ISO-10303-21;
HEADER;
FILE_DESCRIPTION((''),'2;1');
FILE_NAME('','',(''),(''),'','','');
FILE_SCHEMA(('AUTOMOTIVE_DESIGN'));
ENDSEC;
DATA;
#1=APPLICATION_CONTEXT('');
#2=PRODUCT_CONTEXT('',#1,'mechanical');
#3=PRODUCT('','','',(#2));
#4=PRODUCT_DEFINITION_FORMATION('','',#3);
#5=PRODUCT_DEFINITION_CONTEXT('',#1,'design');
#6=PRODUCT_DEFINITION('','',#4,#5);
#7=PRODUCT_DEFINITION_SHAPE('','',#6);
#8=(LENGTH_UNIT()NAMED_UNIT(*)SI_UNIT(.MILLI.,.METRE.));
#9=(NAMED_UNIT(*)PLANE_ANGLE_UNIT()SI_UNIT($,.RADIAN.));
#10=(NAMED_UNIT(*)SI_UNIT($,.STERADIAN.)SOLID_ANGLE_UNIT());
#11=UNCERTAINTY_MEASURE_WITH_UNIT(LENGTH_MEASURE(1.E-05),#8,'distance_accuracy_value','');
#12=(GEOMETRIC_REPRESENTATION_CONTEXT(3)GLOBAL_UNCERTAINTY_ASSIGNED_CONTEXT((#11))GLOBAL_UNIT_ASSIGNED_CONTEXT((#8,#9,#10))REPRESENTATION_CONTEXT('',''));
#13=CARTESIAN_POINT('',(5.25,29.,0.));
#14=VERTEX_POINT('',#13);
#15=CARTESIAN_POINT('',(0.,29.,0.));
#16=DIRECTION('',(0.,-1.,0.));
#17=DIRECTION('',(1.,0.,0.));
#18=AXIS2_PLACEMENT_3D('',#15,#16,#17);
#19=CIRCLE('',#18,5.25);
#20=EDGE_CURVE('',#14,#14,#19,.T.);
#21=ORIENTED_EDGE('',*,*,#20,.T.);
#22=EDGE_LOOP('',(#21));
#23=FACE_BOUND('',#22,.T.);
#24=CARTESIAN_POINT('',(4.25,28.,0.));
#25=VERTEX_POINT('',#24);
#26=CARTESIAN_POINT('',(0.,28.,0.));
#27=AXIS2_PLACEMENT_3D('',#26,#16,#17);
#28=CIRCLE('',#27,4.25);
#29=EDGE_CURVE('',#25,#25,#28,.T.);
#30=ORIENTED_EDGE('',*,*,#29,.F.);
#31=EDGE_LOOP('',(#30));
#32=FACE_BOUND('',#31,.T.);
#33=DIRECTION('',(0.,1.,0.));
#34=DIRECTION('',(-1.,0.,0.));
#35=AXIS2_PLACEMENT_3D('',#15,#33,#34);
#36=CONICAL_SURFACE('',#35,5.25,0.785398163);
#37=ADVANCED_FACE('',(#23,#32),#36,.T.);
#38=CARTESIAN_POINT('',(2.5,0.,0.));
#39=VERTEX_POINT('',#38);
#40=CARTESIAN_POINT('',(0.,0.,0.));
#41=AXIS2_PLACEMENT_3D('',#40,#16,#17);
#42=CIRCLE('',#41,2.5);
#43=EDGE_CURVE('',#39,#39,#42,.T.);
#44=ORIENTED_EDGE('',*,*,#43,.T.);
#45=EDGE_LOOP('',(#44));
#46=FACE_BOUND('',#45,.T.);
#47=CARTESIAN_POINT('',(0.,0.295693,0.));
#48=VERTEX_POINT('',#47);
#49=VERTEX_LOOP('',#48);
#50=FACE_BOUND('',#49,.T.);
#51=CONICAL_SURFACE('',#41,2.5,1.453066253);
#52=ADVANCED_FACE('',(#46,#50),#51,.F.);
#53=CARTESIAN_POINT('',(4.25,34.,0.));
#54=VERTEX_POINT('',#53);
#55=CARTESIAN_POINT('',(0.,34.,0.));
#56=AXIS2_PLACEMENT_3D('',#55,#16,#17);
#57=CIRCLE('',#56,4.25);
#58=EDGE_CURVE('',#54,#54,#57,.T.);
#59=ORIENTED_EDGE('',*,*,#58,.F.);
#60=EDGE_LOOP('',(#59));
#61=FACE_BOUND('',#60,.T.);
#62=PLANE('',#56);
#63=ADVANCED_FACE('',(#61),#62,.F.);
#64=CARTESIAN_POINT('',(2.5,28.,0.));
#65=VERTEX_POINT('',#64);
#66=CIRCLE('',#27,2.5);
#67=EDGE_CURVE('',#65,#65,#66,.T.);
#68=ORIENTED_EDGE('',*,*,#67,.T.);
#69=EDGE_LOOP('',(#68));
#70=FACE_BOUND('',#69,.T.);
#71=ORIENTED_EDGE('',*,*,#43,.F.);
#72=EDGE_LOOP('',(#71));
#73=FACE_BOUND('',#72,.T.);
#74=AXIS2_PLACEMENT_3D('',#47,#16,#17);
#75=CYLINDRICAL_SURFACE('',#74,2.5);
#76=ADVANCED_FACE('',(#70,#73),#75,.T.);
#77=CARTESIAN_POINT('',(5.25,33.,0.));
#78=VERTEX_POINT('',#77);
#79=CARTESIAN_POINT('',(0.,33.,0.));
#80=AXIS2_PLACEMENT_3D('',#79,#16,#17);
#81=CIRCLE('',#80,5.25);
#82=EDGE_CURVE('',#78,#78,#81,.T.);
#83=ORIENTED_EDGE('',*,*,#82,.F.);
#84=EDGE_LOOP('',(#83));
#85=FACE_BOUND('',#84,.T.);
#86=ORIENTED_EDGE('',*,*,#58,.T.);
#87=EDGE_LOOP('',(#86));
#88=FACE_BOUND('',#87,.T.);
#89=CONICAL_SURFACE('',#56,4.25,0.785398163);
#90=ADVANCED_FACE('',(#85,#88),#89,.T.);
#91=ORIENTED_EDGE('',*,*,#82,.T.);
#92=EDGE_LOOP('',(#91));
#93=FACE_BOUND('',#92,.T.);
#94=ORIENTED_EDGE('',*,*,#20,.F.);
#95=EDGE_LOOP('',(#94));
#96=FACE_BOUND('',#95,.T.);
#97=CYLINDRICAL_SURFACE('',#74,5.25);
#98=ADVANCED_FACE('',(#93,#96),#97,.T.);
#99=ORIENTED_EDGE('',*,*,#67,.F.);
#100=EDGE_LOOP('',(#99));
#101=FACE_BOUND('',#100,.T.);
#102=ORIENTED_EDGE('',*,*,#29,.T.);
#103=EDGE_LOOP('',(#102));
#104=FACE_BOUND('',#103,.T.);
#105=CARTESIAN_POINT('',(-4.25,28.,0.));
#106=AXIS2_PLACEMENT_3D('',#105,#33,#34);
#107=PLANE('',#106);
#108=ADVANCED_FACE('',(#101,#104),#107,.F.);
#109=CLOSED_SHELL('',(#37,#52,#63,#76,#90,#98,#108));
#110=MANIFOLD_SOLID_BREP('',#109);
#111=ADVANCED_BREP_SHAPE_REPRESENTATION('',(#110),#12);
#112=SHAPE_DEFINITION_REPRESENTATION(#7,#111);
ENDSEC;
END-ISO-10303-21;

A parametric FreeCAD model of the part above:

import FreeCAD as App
import Part
import Sketcher
from FreeCAD import Vector
Q = App.Units.Quantity

doc = App.newDocument("Part")
body = doc.addObject("PartDesign::Body", "Body")

sketch1 = body.newObject("Sketcher::SketchObject", "Sketch")
sketch1.AttachmentSupport = (doc.getObject("XY_Plane"), [""])
sketch1.MapMode = "FlatFace"
sketch1.addGeometry([
    Part.LineSegment(Vector(0, 34, 0), Vector(-4.25, 34, 0)),
    Part.LineSegment(Vector(-4.25, 34, 0), Vector(-5.25, 33, 0)),
    Part.LineSegment(Vector(-5.25, 33, 0), Vector(-5.25, 29, 0)),
    Part.LineSegment(Vector(-5.25, 29, 0), Vector(-4.25, 28, 0)),
    Part.LineSegment(Vector(-4.25, 28, 0), Vector(-2.5, 28, 0)),
    Part.LineSegment(Vector(-2.5, 28, 0), Vector(-2.5, 0, 0)),
    Part.LineSegment(Vector(-2.5, 0, 0), Vector(0, 0.295693, 0)),
    Part.LineSegment(Vector(0, 0.295693, 0), Vector(0, 34, 0)),
], False)
sketch1.addConstraint([
    Sketcher.Constraint("Coincident", 0, 2, 1, 1),
    Sketcher.Constraint("Coincident", 1, 2, 2, 1),
    Sketcher.Constraint("Coincident", 2, 2, 3, 1),
    Sketcher.Constraint("Coincident", 3, 2, 4, 1),
    Sketcher.Constraint("Coincident", 4, 2, 5, 1),
    Sketcher.Constraint("Coincident", 5, 2, 6, 1),
    Sketcher.Constraint("Coincident", 6, 2, 7, 1),
    Sketcher.Constraint("Coincident", 7, 2, 0, 1),
    Sketcher.Constraint("Horizontal", 0),
    Sketcher.Constraint("Vertical", 2),
    Sketcher.Constraint("Horizontal", 4),
    Sketcher.Constraint("Vertical", 5),
    Sketcher.Constraint("Vertical", 7),
    Sketcher.Constraint("PointOnObject", 5, 2, -1),
    Sketcher.Constraint("PointOnObject", 6, 2, -2),
    Sketcher.Constraint("Perpendicular", 1, 3),
    Sketcher.Constraint("Vertical", 0, 2, 3, 2),
    Sketcher.Constraint("Equal", 1, 3),
    Sketcher.Constraint("DistanceY", 2, 2, 2, 1, Q("4 mm")),
    Sketcher.Constraint("DistanceY", 5, 2, 5, 1, Q("28 mm")),
    Sketcher.Constraint("DistanceY", -1, 1, 0, 2, Q("34 mm")),
    Sketcher.Constraint("DistanceX", 0, 2, 0, 1, Q("4.25 mm")),
    Sketcher.Constraint("DistanceX", 4, 1, 4, 2, Q("1.75 mm")),
    Sketcher.Constraint("DistanceY", 7, 1, 7, 2, Q("33.704307 mm")),
])
revolution = body.newObject("PartDesign::Revolution", "Revolution")
revolution.Profile = sketch1
revolution.ReferenceAxis = (sketch1, ["V_Axis"])
revolution.Angle = 360

doc.recompute()
